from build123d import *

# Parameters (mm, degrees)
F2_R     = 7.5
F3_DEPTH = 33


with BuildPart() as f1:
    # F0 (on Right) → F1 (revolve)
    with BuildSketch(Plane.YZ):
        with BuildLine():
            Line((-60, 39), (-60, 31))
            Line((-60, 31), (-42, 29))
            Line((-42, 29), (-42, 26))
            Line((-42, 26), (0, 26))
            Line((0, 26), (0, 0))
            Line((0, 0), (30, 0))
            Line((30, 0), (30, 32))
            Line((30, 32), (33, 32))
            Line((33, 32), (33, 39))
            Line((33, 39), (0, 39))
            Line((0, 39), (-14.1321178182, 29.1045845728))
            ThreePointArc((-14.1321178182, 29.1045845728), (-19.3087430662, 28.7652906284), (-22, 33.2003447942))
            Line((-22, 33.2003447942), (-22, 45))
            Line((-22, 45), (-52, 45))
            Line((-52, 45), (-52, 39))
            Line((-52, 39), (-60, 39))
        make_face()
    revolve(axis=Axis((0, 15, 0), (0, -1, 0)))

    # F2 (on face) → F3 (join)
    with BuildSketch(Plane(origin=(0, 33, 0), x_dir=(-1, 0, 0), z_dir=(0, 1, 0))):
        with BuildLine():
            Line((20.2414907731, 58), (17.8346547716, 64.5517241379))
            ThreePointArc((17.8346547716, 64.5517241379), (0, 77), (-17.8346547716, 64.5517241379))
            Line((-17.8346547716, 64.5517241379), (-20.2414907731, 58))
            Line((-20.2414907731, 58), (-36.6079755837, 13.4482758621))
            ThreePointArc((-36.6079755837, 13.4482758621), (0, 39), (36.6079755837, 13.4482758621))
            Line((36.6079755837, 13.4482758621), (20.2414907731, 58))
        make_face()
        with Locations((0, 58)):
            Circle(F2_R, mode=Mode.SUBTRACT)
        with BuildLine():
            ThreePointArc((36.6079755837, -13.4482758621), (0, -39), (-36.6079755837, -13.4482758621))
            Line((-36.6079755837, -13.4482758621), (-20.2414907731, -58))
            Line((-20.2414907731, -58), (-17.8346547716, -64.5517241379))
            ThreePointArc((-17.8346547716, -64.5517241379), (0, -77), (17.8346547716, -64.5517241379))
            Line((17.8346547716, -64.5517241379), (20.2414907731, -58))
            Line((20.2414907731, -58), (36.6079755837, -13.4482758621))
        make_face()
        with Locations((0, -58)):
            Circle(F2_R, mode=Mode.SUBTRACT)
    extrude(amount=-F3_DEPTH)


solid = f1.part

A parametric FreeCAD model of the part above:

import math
import FreeCAD as App
import Part
import Sketcher
Q = App.Units.Quantity

doc = App.newDocument("Part")
body = doc.addObject("PartDesign::Body", "Body")

sketch1 = doc.addObject("Sketcher::SketchObject", "Sketch")
body.addObject(sketch1)
sketch1.AttachmentSupport = (doc.YZ_Plane, [""])
sketch1.MapMode = "FlatFace"
sketch1.addGeometry([
    Part.LineSegment(App.Vector(-60, 39, 0), App.Vector(-60, 31, 0)),
    Part.LineSegment(App.Vector(-60, 31, 0), App.Vector(-42, 29, 0)),
    Part.LineSegment(App.Vector(-42, 29, 0), App.Vector(-42, 26, 0)),
    Part.LineSegment(App.Vector(-42, 26, 0), App.Vector(0, 26, 0)),
    Part.LineSegment(App.Vector(0, 26, 0), App.Vector(0, 0, 0)),
    Part.LineSegment(App.Vector(0, 0, 0), App.Vector(30, 0, 0)),
    Part.LineSegment(App.Vector(30, 0, 0), App.Vector(30, 32, 0)),
    Part.LineSegment(App.Vector(30, 32, 0), App.Vector(33, 32, 0)),
    Part.LineSegment(App.Vector(33, 32, 0), App.Vector(33, 39, 0)),
    Part.LineSegment(App.Vector(33, 39, 0), App.Vector(0, 39, 0)),
    Part.LineSegment(App.Vector(0, 39, 0), App.Vector(-14.1, 29.1, 0)),
    Part.ArcOfCircle(Part.Circle(App.Vector(-17, 33.2, 0), App.Vector(0, 0, 1), 5), math.radians(180), math.radians(305)),
    Part.LineSegment(App.Vector(-22, 33.2, 0), App.Vector(-22, 45, 0)),
    Part.LineSegment(App.Vector(-22, 45, 0), App.Vector(-52, 45, 0)),
    Part.LineSegment(App.Vector(-52, 45, 0), App.Vector(-52, 39, 0)),
    Part.LineSegment(App.Vector(-52, 39, 0), App.Vector(-60, 39, 0)),
], False)
sketch1.addConstraint([
    Sketcher.Constraint("Coincident", 0, 2, 1, 1),
    Sketcher.Constraint("Coincident", 1, 2, 2, 1),
    Sketcher.Constraint("Coincident", 2, 2, 3, 1),
    Sketcher.Constraint("Coincident", 3, 2, 4, 1),
    Sketcher.Constraint("Coincident", 4, 2, 5, 1),
    Sketcher.Constraint("Coincident", 5, 2, 6, 1),
    Sketcher.Constraint("Coincident", 6, 2, 7, 1),
    Sketcher.Constraint("Coincident", 7, 2, 8, 1),
    Sketcher.Constraint("Coincident", 8, 2, 9, 1),
    Sketcher.Constraint("Coincident", 9, 2, 10, 1),
    Sketcher.Constraint("Tangent", 10, 2, 11, 2),
    Sketcher.Constraint("Tangent", 11, 1, 12, 1),
    Sketcher.Constraint("Coincident", 12, 2, 13, 1),
    Sketcher.Constraint("Coincident", 13, 2, 14, 1),
    Sketcher.Constraint("Coincident", 14, 2, 15, 1),
    Sketcher.Constraint("Coincident", 15, 2, 0, 1),
    Sketcher.Constraint("Vertical", 0),
    Sketcher.Constraint("Vertical", 2),
    Sketcher.Constraint("Horizontal", 3),
    Sketcher.Constraint("Vertical", 4),
    Sketcher.Constraint("Horizontal", 5),
    Sketcher.Constraint("Vertical", 6),
    Sketcher.Constraint("Horizontal", 7),
    Sketcher.Constraint("Vertical", 8),
    Sketcher.Constraint("Horizontal", 9),
    Sketcher.Constraint("Vertical", 12),
    Sketcher.Constraint("Horizontal", 13),
    Sketcher.Constraint("Vertical", 14),
    Sketcher.Constraint("Horizontal", 15),
    Sketcher.Constraint("Coincident", 4, 2, -1, 1),
    Sketcher.Constraint("PointOnObject", 9, 2, -2),
    Sketcher.Constraint("Horizontal", 9, 2, 14, 2),
    Sketcher.Constraint("Equal", 5, 13),
    Sketcher.Constraint("Equal", 15, 0),
    Sketcher.Constraint("Equal", 7, 2),
    Sketcher.Constraint("Radius", 11, 5.0),
    Sketcher.Constraint("DistanceX", 3, 1, 3, 2, 42.0),
    Sketcher.Constraint("DistanceX", 5, 1, 5, 2, 30.0),
    Sketcher.Constraint("DistanceX", 7, 1, 7, 2, 3.0),
    Sketcher.Constraint("DistanceX", 15, 2, 15, 1, 8.0),
    Sketcher.Constraint("DistanceY", 4, 2, 4, 1, 26.0),
    Sketcher.Constraint("DistanceY", 6, 1, 6, 2, 32.0),
    Sketcher.Constraint("DistanceY", 8, 1, 8, 2, 7.0),
    Sketcher.Constraint("DistanceY", 14, 2, 14, 1, 6.0),
    Sketcher.Constraint("Angle", 10, Q("-145 deg")),
    Sketcher.Constraint("DistanceX", 11, 3, -1, 1, 17.0),
])
revolution = doc.addObject("PartDesign::Revolution", "Revolution")
body.addObject(revolution)
revolution.Profile = sketch1
revolution.ReferenceAxis = (sketch1, ["H_Axis"])
revolution.Angle = 360

sketch2 = doc.addObject("Sketcher::SketchObject", "Sketch001")
body.addObject(sketch2)
sketch2.AttachmentSupport = (doc.XZ_Plane, [""])
sketch2.MapMode = "FlatFace"
sketch2.AttachmentOffset = App.Placement(App.Vector(0, 0, -33), App.Rotation())
sketch2.addGeometry([
    Part.LineSegment(App.Vector(-20, 58, 0), App.Vector(-18, 65, 0)),
    Part.ArcOfCircle(Part.Circle(App.Vector(0, 58, 0), App.Vector(0, 0, 1), 19), math.radians(20), math.radians(160)),
    Part.LineSegment(App.Vector(18, 65, 0), App.Vector(20, 58, 0)),
    Part.LineSegment(App.Vector(20, 58, 0), App.Vector(37, 13, 0)),
    Part.ArcOfCircle(Part.Circle(App.Vector(0, 0, 0), App.Vector(0, 0, 1), 39), math.radians(20), math.radians(160)),
    Part.LineSegment(App.Vector(-37, 13, 0), App.Vector(-20, 58, 0)),
    Part.Circle(App.Vector(0, 58, 0), App.Vector(0, 0, 1), 8),
    Part.ArcOfCircle(Part.Circle(App.Vector(0, 0, 0), App.Vector(0, 0, 1), 39), math.radians(-160), math.radians(-20)),
    Part.LineSegment(App.Vector(37, -13, 0), App.Vector(20, -58, 0)),
    Part.LineSegment(App.Vector(20, -58, 0), App.Vector(18, -65, 0)),
    Part.ArcOfCircle(Part.Circle(App.Vector(0, -58, 0), App.Vector(0, 0, 1), 19), math.radians(-160), math.radians(-20)),
    Part.LineSegment(App.Vector(-18, -65, 0), App.Vector(-20, -58, 0)),
    Part.LineSegment(App.Vector(-20, -58, 0), App.Vector(-37, -13, 0)),
    Part.Circle(App.Vector(0, -58, 0), App.Vector(0, 0, 1), 8),
], False)
sketch2.addConstraint([
    Sketcher.Constraint("Tangent", 0, 2, 1, 2),
    Sketcher.Constraint("Tangent", 1, 1, 2, 1),
    Sketcher.Constraint("Coincident", 2, 2, 3, 1),
    Sketcher.Constraint("Tangent", 3, 2, 4, 1),
    Sketcher.Constraint("Tangent", 4, 2, 5, 1),
    Sketcher.Constraint("Coincident", 5, 2, 0, 1),
    Sketcher.Constraint("Tangent", 7, 2, 8, 1),
    Sketcher.Constraint("Coincident", 8, 2, 9, 1),
    Sketcher.Constraint("Tangent", 9, 2, 10, 2),
    Sketcher.Constraint("Tangent", 10, 1, 11, 1),
    Sketcher.Constraint("Coincident", 11, 2, 12, 1),
    Sketcher.Constraint("Tangent", 12, 2, 7, 1),
    Sketcher.Constraint("Coincident", 4, 3, -1, 1),
    Sketcher.Constraint("Coincident", 7, 3, -1, 1),
    Sketcher.Constraint("Coincident", 6, 3, 1, 3),
    Sketcher.Constraint("Coincident", 13, 3, 10, 3),
    Sketcher.Constraint("Equal", 4, 7),
    Sketcher.Constraint("Equal", 1, 10),
    Sketcher.Constraint("Equal", 6, 13),
    Sketcher.Constraint("Symmetric", 1, 3, 10, 3, -1, 1),
    Sketcher.Constraint("Symmetric", 5, 2, 8, 2, -1, 1),
    Sketcher.Constraint("Symmetric", 2, 2, 11, 2, -1, 1),
    Sketcher.Constraint("Symmetric", 0, 2, 1, 1, -2),
    Sketcher.Constraint("Parallel", 2, 3),
    Sketcher.Constraint("Horizontal", 6, 3, 2, 2),
    Sketcher.Constraint("Horizontal", 2, 2, 5, 2),
    Sketcher.Constraint("Diameter", 6, 15.0),
    Sketcher.Constraint("Radius", 1, 19.0),
    Sketcher.Constraint("Radius", 4, 39.0),
    Sketcher.Constraint("DistanceY", -1, 1, 1, 3, 58.0),
])
pad1 = doc.addObject("PartDesign::Pad", "Pad")
body.addObject(pad1)
pad1.Profile = sketch2
pad1.Length = 33

doc.recompute()
